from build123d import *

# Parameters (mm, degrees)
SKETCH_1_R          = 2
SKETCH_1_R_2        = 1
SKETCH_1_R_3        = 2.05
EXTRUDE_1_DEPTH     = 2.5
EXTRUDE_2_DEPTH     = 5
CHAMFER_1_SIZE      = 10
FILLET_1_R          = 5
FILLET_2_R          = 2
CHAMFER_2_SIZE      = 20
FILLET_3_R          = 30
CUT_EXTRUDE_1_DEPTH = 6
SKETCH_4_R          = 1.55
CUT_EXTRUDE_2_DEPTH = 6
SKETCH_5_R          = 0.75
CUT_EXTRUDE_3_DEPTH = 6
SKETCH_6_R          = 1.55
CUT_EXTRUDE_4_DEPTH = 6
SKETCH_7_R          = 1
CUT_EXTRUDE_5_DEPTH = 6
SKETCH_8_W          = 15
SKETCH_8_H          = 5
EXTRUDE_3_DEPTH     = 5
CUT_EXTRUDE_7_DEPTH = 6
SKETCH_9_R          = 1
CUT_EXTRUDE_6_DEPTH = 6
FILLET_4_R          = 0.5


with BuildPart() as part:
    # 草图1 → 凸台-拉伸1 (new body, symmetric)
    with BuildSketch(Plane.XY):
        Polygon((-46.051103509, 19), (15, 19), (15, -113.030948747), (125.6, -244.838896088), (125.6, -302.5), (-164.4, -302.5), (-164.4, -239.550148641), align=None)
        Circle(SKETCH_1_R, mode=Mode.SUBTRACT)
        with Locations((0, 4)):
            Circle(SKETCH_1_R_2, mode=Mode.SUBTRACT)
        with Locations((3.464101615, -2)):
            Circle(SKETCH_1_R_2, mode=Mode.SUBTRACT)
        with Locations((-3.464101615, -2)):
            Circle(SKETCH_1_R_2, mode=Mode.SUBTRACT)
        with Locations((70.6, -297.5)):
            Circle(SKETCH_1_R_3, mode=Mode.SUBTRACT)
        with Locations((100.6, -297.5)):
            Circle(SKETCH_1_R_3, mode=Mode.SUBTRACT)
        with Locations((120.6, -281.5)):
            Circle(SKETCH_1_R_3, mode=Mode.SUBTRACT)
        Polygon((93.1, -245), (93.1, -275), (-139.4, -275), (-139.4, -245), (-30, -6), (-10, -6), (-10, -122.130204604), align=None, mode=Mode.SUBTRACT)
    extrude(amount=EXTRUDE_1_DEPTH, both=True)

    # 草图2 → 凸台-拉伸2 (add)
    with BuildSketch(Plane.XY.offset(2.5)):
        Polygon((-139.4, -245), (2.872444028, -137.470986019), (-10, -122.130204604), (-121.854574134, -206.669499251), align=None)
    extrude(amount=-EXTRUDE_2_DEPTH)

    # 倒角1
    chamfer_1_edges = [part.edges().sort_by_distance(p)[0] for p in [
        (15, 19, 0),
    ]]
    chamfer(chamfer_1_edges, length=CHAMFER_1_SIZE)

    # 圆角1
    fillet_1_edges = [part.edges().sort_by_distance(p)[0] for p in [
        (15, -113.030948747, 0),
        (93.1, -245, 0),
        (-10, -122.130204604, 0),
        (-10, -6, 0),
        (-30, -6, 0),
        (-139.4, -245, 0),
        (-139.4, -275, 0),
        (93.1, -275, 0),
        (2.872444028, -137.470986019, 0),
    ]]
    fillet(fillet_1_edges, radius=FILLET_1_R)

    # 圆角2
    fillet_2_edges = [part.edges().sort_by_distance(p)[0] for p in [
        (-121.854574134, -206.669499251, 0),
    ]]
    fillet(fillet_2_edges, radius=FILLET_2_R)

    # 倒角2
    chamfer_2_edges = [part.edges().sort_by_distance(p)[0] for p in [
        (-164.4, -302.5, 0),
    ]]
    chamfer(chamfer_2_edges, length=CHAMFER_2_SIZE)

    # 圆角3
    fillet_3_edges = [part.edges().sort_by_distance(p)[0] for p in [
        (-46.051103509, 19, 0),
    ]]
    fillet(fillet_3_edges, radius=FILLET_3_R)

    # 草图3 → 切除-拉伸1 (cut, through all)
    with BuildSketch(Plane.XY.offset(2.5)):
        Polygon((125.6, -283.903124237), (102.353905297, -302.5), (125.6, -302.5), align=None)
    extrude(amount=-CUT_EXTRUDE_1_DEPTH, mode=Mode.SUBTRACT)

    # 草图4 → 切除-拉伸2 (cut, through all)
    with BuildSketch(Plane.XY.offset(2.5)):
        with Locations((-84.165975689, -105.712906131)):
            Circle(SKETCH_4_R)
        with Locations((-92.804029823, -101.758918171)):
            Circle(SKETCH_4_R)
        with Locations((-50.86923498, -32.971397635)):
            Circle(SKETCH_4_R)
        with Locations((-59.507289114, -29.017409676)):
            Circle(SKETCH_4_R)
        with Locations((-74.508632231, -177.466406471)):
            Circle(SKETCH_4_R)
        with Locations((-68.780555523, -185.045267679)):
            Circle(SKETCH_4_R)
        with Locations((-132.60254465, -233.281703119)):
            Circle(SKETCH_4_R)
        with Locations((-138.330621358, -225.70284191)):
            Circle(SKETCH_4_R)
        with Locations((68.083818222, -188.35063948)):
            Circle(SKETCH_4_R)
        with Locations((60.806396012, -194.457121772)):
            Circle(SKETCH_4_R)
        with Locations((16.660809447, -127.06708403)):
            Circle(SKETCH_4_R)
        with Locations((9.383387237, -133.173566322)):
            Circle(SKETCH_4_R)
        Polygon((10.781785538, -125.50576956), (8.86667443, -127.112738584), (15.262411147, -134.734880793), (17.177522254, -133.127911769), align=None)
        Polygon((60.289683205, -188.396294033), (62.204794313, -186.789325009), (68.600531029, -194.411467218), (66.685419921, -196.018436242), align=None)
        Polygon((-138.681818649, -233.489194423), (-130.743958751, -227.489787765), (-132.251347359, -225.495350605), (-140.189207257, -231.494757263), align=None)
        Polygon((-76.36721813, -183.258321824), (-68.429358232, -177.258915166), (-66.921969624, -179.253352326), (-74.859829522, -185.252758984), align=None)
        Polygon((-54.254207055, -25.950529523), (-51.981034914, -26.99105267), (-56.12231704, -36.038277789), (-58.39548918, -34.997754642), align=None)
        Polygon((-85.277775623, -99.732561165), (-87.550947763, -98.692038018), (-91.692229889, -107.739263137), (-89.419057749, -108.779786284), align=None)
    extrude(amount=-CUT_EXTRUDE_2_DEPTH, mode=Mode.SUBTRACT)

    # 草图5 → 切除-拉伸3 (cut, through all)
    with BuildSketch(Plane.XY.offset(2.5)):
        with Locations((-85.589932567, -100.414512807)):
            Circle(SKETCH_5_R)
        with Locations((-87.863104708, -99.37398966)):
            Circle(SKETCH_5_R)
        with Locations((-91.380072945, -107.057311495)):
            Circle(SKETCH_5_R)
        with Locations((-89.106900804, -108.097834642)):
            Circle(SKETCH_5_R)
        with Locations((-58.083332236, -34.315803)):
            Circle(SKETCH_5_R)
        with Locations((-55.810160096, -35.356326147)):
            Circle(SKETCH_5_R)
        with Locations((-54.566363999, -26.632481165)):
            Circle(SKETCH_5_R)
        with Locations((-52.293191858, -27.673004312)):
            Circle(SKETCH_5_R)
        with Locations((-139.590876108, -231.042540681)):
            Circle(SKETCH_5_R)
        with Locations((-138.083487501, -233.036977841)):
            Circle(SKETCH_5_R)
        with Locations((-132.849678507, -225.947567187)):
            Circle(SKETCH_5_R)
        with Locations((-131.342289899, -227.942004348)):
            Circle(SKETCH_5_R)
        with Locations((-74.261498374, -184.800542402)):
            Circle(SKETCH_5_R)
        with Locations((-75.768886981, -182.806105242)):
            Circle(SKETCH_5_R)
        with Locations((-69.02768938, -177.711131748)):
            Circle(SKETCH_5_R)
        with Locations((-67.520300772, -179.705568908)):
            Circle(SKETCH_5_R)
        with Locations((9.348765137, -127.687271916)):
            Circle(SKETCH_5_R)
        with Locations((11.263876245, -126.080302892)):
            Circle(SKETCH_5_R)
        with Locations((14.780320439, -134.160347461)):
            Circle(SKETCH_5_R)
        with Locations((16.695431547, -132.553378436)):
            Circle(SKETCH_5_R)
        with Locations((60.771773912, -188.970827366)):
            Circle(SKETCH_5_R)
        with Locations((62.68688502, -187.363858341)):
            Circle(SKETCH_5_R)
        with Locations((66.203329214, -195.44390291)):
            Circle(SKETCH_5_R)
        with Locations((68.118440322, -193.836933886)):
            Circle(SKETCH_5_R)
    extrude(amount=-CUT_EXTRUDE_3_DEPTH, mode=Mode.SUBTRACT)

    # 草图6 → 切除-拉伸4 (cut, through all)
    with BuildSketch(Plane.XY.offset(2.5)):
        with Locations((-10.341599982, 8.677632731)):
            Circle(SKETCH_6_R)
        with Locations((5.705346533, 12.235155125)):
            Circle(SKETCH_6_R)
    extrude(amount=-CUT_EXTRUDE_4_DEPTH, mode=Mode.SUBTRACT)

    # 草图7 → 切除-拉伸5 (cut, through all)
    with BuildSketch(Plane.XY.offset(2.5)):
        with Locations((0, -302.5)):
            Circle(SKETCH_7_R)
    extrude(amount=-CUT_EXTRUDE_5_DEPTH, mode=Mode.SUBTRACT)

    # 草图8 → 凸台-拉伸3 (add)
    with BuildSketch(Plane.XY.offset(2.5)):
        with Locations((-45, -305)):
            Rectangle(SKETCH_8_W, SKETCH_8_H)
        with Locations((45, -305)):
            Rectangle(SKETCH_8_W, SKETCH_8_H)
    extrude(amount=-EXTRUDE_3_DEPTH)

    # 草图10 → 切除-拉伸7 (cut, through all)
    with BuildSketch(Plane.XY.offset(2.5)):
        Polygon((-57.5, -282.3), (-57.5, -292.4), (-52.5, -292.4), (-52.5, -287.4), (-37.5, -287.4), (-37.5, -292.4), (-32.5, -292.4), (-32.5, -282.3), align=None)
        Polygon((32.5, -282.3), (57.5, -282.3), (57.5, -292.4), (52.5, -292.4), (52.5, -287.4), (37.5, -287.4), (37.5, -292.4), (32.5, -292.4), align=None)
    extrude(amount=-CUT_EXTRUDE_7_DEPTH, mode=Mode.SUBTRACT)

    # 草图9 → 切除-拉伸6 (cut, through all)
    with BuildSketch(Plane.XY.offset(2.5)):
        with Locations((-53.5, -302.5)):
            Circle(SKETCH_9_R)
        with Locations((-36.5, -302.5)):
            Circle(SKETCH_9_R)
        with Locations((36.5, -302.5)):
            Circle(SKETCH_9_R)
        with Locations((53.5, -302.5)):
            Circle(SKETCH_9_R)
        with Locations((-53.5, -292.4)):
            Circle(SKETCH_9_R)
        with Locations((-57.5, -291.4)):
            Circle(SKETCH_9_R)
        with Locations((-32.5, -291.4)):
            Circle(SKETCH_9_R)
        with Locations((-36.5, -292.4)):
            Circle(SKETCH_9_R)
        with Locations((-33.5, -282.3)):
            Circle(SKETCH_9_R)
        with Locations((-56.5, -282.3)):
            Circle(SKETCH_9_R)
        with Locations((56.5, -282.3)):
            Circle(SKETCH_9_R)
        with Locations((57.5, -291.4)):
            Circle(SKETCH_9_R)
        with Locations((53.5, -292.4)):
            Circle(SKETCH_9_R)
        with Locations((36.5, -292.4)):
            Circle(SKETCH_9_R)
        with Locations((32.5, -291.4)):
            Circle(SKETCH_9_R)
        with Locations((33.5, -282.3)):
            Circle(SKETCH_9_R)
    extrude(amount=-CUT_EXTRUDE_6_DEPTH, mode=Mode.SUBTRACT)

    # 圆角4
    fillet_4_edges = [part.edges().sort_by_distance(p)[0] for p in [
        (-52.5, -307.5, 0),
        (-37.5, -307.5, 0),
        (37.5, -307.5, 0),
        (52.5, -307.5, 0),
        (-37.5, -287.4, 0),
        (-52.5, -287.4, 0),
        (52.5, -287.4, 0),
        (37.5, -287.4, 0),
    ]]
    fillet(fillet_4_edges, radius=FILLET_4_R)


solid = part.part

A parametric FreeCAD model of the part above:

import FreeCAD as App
import Part
import Sketcher
Q = App.Units.Quantity


def edges_at(feature, points):
    """Names of the edges that pass closest to the given points."""
    edges = feature.Shape.Edges
    near = lambda p: min(range(len(edges)), key=lambda i: edges[i].distToShape(Part.Vertex(*p))[0])
    return sorted({f"Edge{near(p) + 1}" for p in points})


def add_polygon(sketch, points):
    """Adds a closed chain of lines whose ends are joined by coincident constraints."""
    first, n = sketch.GeometryCount, len(points)
    for a, b in zip(points, points[1:] + points[:1]):
        sketch.addGeometry(Part.LineSegment(App.Vector(*a, 0), App.Vector(*b, 0)), False)
    for i in range(n):
        sketch.addConstraint(Sketcher.Constraint("Coincident", first + i, 2, first + (i + 1) % n, 1))

doc = App.newDocument("Part")
params = doc.addObject("Spreadsheet::Sheet", "Params")
for row, (alias, value) in enumerate([
    ("sketch1_diameter", "2 mm"),
    ("sketch1_diameter2", "4 mm"),
    ("sketch1_diameter3", "4.1 mm"),
    ("sketch1_width", "290 mm"),
    ("sketch1_width2", "20 mm"),
    ("pad1_length", "5 mm"),
    ("pad2_length", "5 mm"),
    ("chamfer_size", "10 mm"),
    ("fillet_radius", "5 mm"),
    ("fillet2_radius", "2 mm"),
    ("chamfer2_size", "20 mm"),
    ("fillet3_radius", "30 mm"),
    ("sketch4_diameter", "3.1 mm"),
    ("sketch4_length", "2.5 mm"),
    ("sketch4_length2", "9.95 mm"),
    ("sketch5_diameter", "1.5 mm"),
    ("sketch6_diameter", "3.1 mm"),
    ("sketch7_diameter", "2 mm"),
    ("sketch8_width", "15 mm"),
    ("sketch8_height", "5 mm"),
    ("pad3_length", "5 mm"),
    ("sketch9_width", "5 mm"),
    ("sketch9_width2", "15 mm"),
    ("sketch9_height", "10.1 mm"),
    ("sketch10_diameter", "2 mm"),
    ("fillet4_radius", "0.5 mm"),
], start=1):
    params.set(f"A{row}", alias)
    params.set(f"B{row}", "=" + value)
    params.setAlias(f"B{row}", alias)

body = doc.addObject("PartDesign::Body", "Body")

sketch1 = body.newObject("Sketcher::SketchObject", "Sketch")
sketch1.AttachmentSupport = (doc.getObject("XY_Plane"), [""])
sketch1.MapMode = "FlatFace"
add_polygon(sketch1, [(15, 19), (-46.1, 19), (-164.4, -239.6), (-164.4, -302.5), (125.6, -302.5), (125.6, -244.8), (15, -113)])
sketch1.addGeometry(Part.Circle(App.Vector(120.6, -281.5, 0), App.Vector(0, 0, 1), 2), False)
sketch1.addGeometry(Part.Circle(App.Vector(100.6, -297.5, 0), App.Vector(0, 0, 1), 2), False)
sketch1.addGeometry(Part.Circle(App.Vector(70.6, -297.5, 0), App.Vector(0, 0, 1), 2), False)
sketch1.addGeometry(Part.Circle(App.Vector(3.5, -2, 0), App.Vector(0, 0, 1), 1), False)
sketch1.addGeometry(Part.Circle(App.Vector(0, 0, 0), App.Vector(0, 0, 1), 2), False)
sketch1.addGeometry(Part.Circle(App.Vector(0, 4, 0), App.Vector(0, 0, 1), 1), False)
sketch1.addGeometry(Part.Circle(App.Vector(-3.5, -2, 0), App.Vector(0, 0, 1), 1), False)
add_polygon(sketch1, [(93.1, -245), (93.1, -275), (-139.4, -275), (-139.4, -245), (-30, -6), (-10, -6), (-10, -122.1)])
sketch1.addConstraint(Sketcher.Constraint("Horizontal", 0))
sketch1.addConstraint(Sketcher.Constraint("Vertical", 2))
sketch1.addConstraint(Sketcher.Constraint("Horizontal", 3))
sketch1.addConstraint(Sketcher.Constraint("Vertical", 4))
sketch1.addConstraint(Sketcher.Constraint("Vertical", 6))
sketch1.addConstraint(Sketcher.Constraint("Vertical", 14))
sketch1.addConstraint(Sketcher.Constraint("Horizontal", 15))
sketch1.addConstraint(Sketcher.Constraint("Vertical", 16))
sketch1.addConstraint(Sketcher.Constraint("Horizontal", 18))
sketch1.addConstraint(Sketcher.Constraint("Vertical", 19))
sketch1.addConstraint(Sketcher.Constraint("Coincident", 11, 3, -1, 1))
sketch1.addConstraint(Sketcher.Constraint("Equal", 7, 8))
sketch1.addConstraint(Sketcher.Constraint("Equal", 8, 9))
sketch1.addConstraint(Sketcher.Constraint("Equal", 10, 12))
sketch1.addConstraint(Sketcher.Constraint("Equal", 12, 13))
sketch1.addConstraint(Sketcher.Constraint("Symmetric", 10, 3, 13, 3, -2))
sketch1.addConstraint(Sketcher.Constraint("PointOnObject", 12, 3, -2))
sketch1.addConstraint(Sketcher.Constraint("Parallel", 1, 17))
sketch1.addConstraint(Sketcher.Constraint("Parallel", 5, 20))
sketch1.addConstraint(Sketcher.Constraint("Horizontal", 8, 3, 9, 3))
sketch1.addConstraint(Sketcher.Constraint("Horizontal", 16, 2, 20, 2))
sketch1.addConstraint(Sketcher.Constraint("Diameter", 10, Q("2 mm")))
sketch1.addConstraint(Sketcher.Constraint("Diameter", 11, Q("4 mm")))
sketch1.addConstraint(Sketcher.Constraint("Diameter", 7, Q("4.1 mm")))
sketch1.addConstraint(Sketcher.Constraint("DistanceX", 3, 1, 3, 2, Q("290 mm")))
sketch1.addConstraint(Sketcher.Constraint("DistanceX", 18, 1, 18, 2, Q("20 mm")))
sketch1.addConstraint(Sketcher.Constraint("DistanceY", 14, 2, 14, 1, Q("30 mm")))
sketch1.addConstraint(Sketcher.Constraint("Angle", 5, Q("130 deg")))
sketch1.addConstraint(Sketcher.Constraint("DistanceX", 15, 2, 15, 1, Q("232.5 mm")))
sketch1.addConstraint(Sketcher.Constraint("DistanceY", 10, 3, -1, 1, Q("2 mm")))
sketch1.addConstraint(Sketcher.Constraint("DistanceY", -1, 1, 12, 3, Q("4 mm")))
sketch1.addConstraint(Sketcher.Constraint("DistanceY", -1, 1, 0, 2, Q("19 mm")))
sketch1.addConstraint(Sketcher.Constraint("DistanceX", -1, 1, 5, 2, Q("15 mm")))
sketch1.addConstraint(Sketcher.Constraint("DistanceY", 14, 2, -1, 1, Q("275 mm")))
sketch1.addConstraint(Sketcher.Constraint("DistanceX", 17, 2, -1, 1, Q("30 mm")))
sketch1.addConstraint(Sketcher.Constraint("DistanceY", 17, 2, -1, 1, Q("6 mm")))
sketch1.addConstraint(Sketcher.Constraint("DistanceX", 8, 3, 7, 3, Q("20 mm")))
sketch1.addConstraint(Sketcher.Constraint("DistanceY", 8, 3, 7, 3, Q("16 mm")))
sketch1.addConstraint(Sketcher.Constraint("DistanceX", 9, 3, 8, 3, Q("30 mm")))
sketch1.addConstraint(Sketcher.Constraint("DistanceX", 1, 2, 9, 3, Q("235 mm")))
sketch1.addConstraint(Sketcher.Constraint("DistanceY", 2, 2, 9, 3, Q("5 mm")))
sketch1.addConstraint(Sketcher.Constraint("DistanceX", 2, 2, 15, 2, Q("25 mm")))
sketch1.addConstraint(Sketcher.Constraint("DistanceX", -1, 1, 7, 3, Q("120.6 mm")))
sketch1.addConstraint(Sketcher.Constraint("DistanceY", 7, 3, -1, 1, Q("281.5 mm")))
sketch1.addConstraint(Sketcher.Constraint("DistanceX", 0, 2, 13, 3, Q("42.587002 mm")))
sketch1.addConstraint(Sketcher.Constraint("DistanceY", 2, 2, 2, 1, Q("62.949851 mm")))
sketch1.addConstraint(Sketcher.Constraint("DistanceY", 6, 1, 6, 2, Q("132.030949 mm")))
sketch1.setExpression("Constraints[35]", "Params.sketch1_diameter")
sketch1.setExpression("Constraints[36]", "Params.sketch1_diameter2")
sketch1.setExpression("Constraints[37]", "Params.sketch1_diameter3")
sketch1.setExpression("Constraints[38]", "Params.sketch1_width")
sketch1.setExpression("Constraints[39]", "Params.sketch1_width2")
pad1 = body.newObject("PartDesign::Pad", "Pad")
pad1.Profile = sketch1
pad1.setExpression("Length", "Params.pad1_length")
pad1.Midplane = True

sketch2 = body.newObject("Sketcher::SketchObject", "Sketch001")
sketch2.AttachmentSupport = (doc.getObject("XY_Plane"), [""])
sketch2.MapMode = "FlatFace"
sketch2.AttachmentOffset = App.Placement(App.Vector(0, 0, 2.5), App.Rotation())
add_polygon(sketch2, [(-139, -245), (3, -137), (-10, -122), (-122, -207)])
sketch2.addConstraint(Sketcher.Constraint("Parallel", 0, 2))
sketch2.addConstraint(Sketcher.Constraint("Angle", 1, Q("130 deg")))
sketch2.addConstraint(Sketcher.Constraint("DistanceX", 1, 2, -1, 1, Q("10 mm")))
sketch2.addConstraint(Sketcher.Constraint("DistanceY", 3, 2, -1, 1, Q("245 mm")))
sketch2.addConstraint(Sketcher.Constraint("DistanceX", 3, 2, -1, 1, Q("139.4 mm")))
sketch2.addConstraint(Sketcher.Constraint("Distance", 3, Q("42.155299 mm")))
sketch2.addConstraint(Sketcher.Constraint("DistanceY", 2, 2, -1, 1, Q("206.669499 mm")))
sketch2.addConstraint(Sketcher.Constraint("DistanceY", 0, 2, 1, 2, Q("15.340781 mm")))
pad2 = body.newObject("PartDesign::Pad", "Pad001")
pad2.Profile = sketch2
pad2.setExpression("Length", "Params.pad2_length")
pad2.Reversed = True
doc.recompute()

chamfer = body.newObject("PartDesign::Chamfer", "Chamfer")
chamfer.Base = (pad2, edges_at(pad2, [(15, 19, 0)]))
chamfer.setExpression("Size", "Params.chamfer_size")
doc.recompute()

fillet = body.newObject("PartDesign::Fillet", "Fillet")
fillet.Base = (chamfer, edges_at(chamfer, [
    (15, -113.031, 0),
    (93.1, -245, 0),
    (-10, -122.13, 0),
    (-10, -6, 0),
    (-30, -6, 0),
    (-139.4, -245, 0),
    (-139.4, -275, 0),
    (93.1, -275, 0),
    (2.872, -137.471, 0),
]))
fillet.setExpression("Radius", "Params.fillet_radius")
doc.recompute()

fillet2 = body.newObject("PartDesign::Fillet", "Fillet001")
fillet2.Base = (fillet, edges_at(fillet, [(-121.855, -206.669, 0)]))
fillet2.setExpression("Radius", "Params.fillet2_radius")
doc.recompute()

chamfer2 = body.newObject("PartDesign::Chamfer", "Chamfer001")
chamfer2.Base = (fillet2, edges_at(fillet2, [(-164.4, -302.5, 0)]))
chamfer2.setExpression("Size", "Params.chamfer2_size")
doc.recompute()

fillet3 = body.newObject("PartDesign::Fillet", "Fillet002")
fillet3.Base = (chamfer2, edges_at(chamfer2, [(-46.051, 19, 0)]))
fillet3.setExpression("Radius", "Params.fillet3_radius")

sketch3 = body.newObject("Sketcher::SketchObject", "Sketch002")
sketch3.AttachmentSupport = (doc.getObject("XY_Plane"), [""])
sketch3.MapMode = "FlatFace"
sketch3.AttachmentOffset = App.Placement(App.Vector(0, 0, 2.5), App.Rotation())
add_polygon(sketch3, [(126, -284), (102, -302), (126, -302)])
sketch3.addConstraint(Sketcher.Constraint("Horizontal", 1))
sketch3.addConstraint(Sketcher.Constraint("Vertical", 2))
sketch3.addConstraint(Sketcher.Constraint("DistanceY", 0, 2, -1, 1, Q("302.5 mm")))
sketch3.addConstraint(Sketcher.Constraint("DistanceX", -1, 1, 1, 2, Q("125.6 mm")))
sketch3.addConstraint(Sketcher.Constraint("DistanceX", 1, 1, 1, 2, Q("23.246095 mm")))
sketch3.addConstraint(Sketcher.Constraint("DistanceY", 2, 1, 2, 2, Q("18.596876 mm")))
pocket1 = body.newObject("PartDesign::Pocket", "Pocket")
pocket1.Profile = sketch3
pocket1.Type = "ThroughAll"

sketch4 = body.newObject("Sketcher::SketchObject", "Sketch003")
sketch4.AttachmentSupport = (doc.getObject("XY_Plane"), [""])
sketch4.MapMode = "FlatFace"
sketch4.AttachmentOffset = App.Placement(App.Vector(0, 0, 2.5), App.Rotation())
sketch4.addGeometry(Part.Circle(App.Vector(-84.2, -105.7, 0), App.Vector(0, 0, 1), 1.6), False)
sketch4.addGeometry(Part.Circle(App.Vector(-92.8, -101.8, 0), App.Vector(0, 0, 1), 1.6), False)
sketch4.addGeometry(Part.Circle(App.Vector(-50.9, -33, 0), App.Vector(0, 0, 1), 1.6), False)
sketch4.addGeometry(Part.Circle(App.Vector(-59.5, -29, 0), App.Vector(0, 0, 1), 1.6), False)
sketch4.addGeometry(Part.Circle(App.Vector(-74.5, -177.5, 0), App.Vector(0, 0, 1), 1.6), False)
sketch4.addGeometry(Part.Circle(App.Vector(-68.8, -185, 0), App.Vector(0, 0, 1), 1.6), False)
sketch4.addGeometry(Part.Circle(App.Vector(-132.6, -233.3, 0), App.Vector(0, 0, 1), 1.6), False)
sketch4.addGeometry(Part.Circle(App.Vector(-138.3, -225.7, 0), App.Vector(0, 0, 1), 1.6), False)
sketch4.addGeometry(Part.Circle(App.Vector(68.1, -188.4, 0), App.Vector(0, 0, 1), 1.6), False)
sketch4.addGeometry(Part.Circle(App.Vector(60.8, -194.5, 0), App.Vector(0, 0, 1), 1.6), False)
sketch4.addGeometry(Part.Circle(App.Vector(16.7, -127.1, 0), App.Vector(0, 0, 1), 1.6), False)
sketch4.addGeometry(Part.Circle(App.Vector(9.4, -133.2, 0), App.Vector(0, 0, 1), 1.6), False)
add_polygon(sketch4, [(10.8, -125.5), (8.9, -127.1), (15.3, -134.7), (17.2, -133.1)])
add_polygon(sketch4, [(62.2, -186.8), (60.3, -188.4), (66.7, -196), (68.6, -194.4)])
add_polygon(sketch4, [(-138.7, -233.5), (-130.7, -227.5), (-132.3, -225.5), (-140.2, -231.5)])
add_polygon(sketch4, [(-68.4, -177.3), (-76.4, -183.3), (-74.9, -185.3), (-66.9, -179.3)])
add_polygon(sketch4, [(-52, -27), (-54.3, -26), (-58.4, -35), (-56.1, -36)])
add_polygon(sketch4, [(-85.3, -99.7), (-87.6, -98.7), (-91.7, -107.7), (-89.4, -108.8)])
sketch4.addConstraint(Sketcher.Constraint("Equal", 0, 1))
sketch4.addConstraint(Sketcher.Constraint("Equal", 1, 2))
sketch4.addConstraint(Sketcher.Constraint("Equal", 2, 3))
sketch4.addConstraint(Sketcher.Constraint("Equal", 3, 4))
sketch4.addConstraint(Sketcher.Constraint("Equal", 4, 5))
sketch4.addConstraint(Sketcher.Constraint("Equal", 5, 6))
sketch4.addConstraint(Sketcher.Constraint("Equal", 6, 7))
sketch4.addConstraint(Sketcher.Constraint("Equal", 7, 8))
sketch4.addConstraint(Sketcher.Constraint("Equal", 8, 9))
sketch4.addConstraint(Sketcher.Constraint("Equal", 9, 10))
sketch4.addConstraint(Sketcher.Constraint("Equal", 10, 11))
sketch4.addConstraint(Sketcher.Constraint("Perpendicular", 12, 13))
sketch4.addConstraint(Sketcher.Constraint("Perpendicular", 13, 14))
sketch4.addConstraint(Sketcher.Constraint("Perpendicular", 14, 15))
sketch4.addConstraint(Sketcher.Constraint("Perpendicular", 15, 16))
sketch4.addConstraint(Sketcher.Constraint("Perpendicular", 16, 17))
sketch4.addConstraint(Sketcher.Constraint("Perpendicular", 17, 18))
sketch4.addConstraint(Sketcher.Constraint("Perpendicular", 18, 19))
sketch4.addConstraint(Sketcher.Constraint("Perpendicular", 20, 21))
sketch4.addConstraint(Sketcher.Constraint("Perpendicular", 21, 22))
sketch4.addConstraint(Sketcher.Constraint("Perpendicular", 22, 23))
sketch4.addConstraint(Sketcher.Constraint("Perpendicular", 23, 24))
sketch4.addConstraint(Sketcher.Constraint("Perpendicular", 24, 25))
sketch4.addConstraint(Sketcher.Constraint("Perpendicular", 25, 26))
sketch4.addConstraint(Sketcher.Constraint("Perpendicular", 26, 27))
sketch4.addConstraint(Sketcher.Constraint("Perpendicular", 28, 29))
sketch4.addConstraint(Sketcher.Constraint("Perpendicular", 29, 30))
sketch4.addConstraint(Sketcher.Constraint("Perpendicular", 30, 31))
sketch4.addConstraint(Sketcher.Constraint("Perpendicular", 31, 32))
sketch4.addConstraint(Sketcher.Constraint("Perpendicular", 32, 33))
sketch4.addConstraint(Sketcher.Constraint("Perpendicular", 33, 34))
sketch4.addConstraint(Sketcher.Constraint("Perpendicular", 34, 35))
sketch4.addConstraint(Sketcher.Constraint("Equal", 14, 16))
sketch4.addConstraint(Sketcher.Constraint("Equal", 15, 17))
sketch4.addConstraint(Sketcher.Constraint("Equal", 19, 20))
sketch4.addConstraint(Sketcher.Constraint("Equal", 18, 21))
sketch4.addConstraint(Sketcher.Constraint("Equal", 22, 24))
sketch4.addConstraint(Sketcher.Constraint("Equal", 23, 25))
sketch4.addConstraint(Sketcher.Constraint("Equal", 27, 28))
sketch4.addConstraint(Sketcher.Constraint("Equal", 26, 29))
sketch4.addConstraint(Sketcher.Constraint("Equal", 30, 32))
sketch4.addConstraint(Sketcher.Constraint("Equal", 31, 33))
sketch4.addConstraint(Sketcher.Constraint("Diameter", 0, Q("3.1 mm")))
sketch4.addConstraint(Sketcher.Constraint("Angle", 12, Q("-140 deg")))
sketch4.addConstraint(Sketcher.Constraint("Distance", 12, Q("2.5 mm")))
sketch4.addConstraint(Sketcher.Constraint("Distance", 13, Q("9.95 mm")))
sketch4.addConstraint(Sketcher.Constraint("DistanceY", 4, 3, 0, 3, Q("71.7535 mm")))
sketch4.addConstraint(Sketcher.Constraint("DistanceY", 5, 3, 11, 3, Q("51.871701 mm")))
sketch4.addConstraint(Sketcher.Constraint("DistanceY", 8, 3, 12, 2, Q("61.237901 mm")))
sketch4.addConstraint(Sketcher.Constraint("DistanceX", 13, 2, 10, 3, Q("1.398398 mm")))
sketch4.addConstraint(Sketcher.Constraint("DistanceX", 11, 3, 15, 2, Q("1.398398 mm")))
sketch4.addConstraint(Sketcher.Constraint("DistanceX", 17, 2, 8, 3, Q("1.398398 mm")))
sketch4.addConstraint(Sketcher.Constraint("DistanceX", 9, 3, 19, 2, Q("1.398398 mm")))
sketch4.addConstraint(Sketcher.Constraint("DistanceX", 3, 3, 29, 2, Q("1.1118 mm")))
sketch4.addConstraint(Sketcher.Constraint("DistanceX", 31, 2, 2, 3, Q("1.1118 mm")))
sketch4.addConstraint(Sketcher.Constraint("DistanceY", 29, 2, 31, 2, Q("8.006702 mm")))
sketch4.addConstraint(Sketcher.Constraint("DistanceX", 1, 3, 33, 2, Q("1.1118 mm")))
sketch4.addConstraint(Sketcher.Constraint("DistanceX", 35, 2, 0, 3, Q("1.1118 mm")))
sketch4.addConstraint(Sketcher.Constraint("DistanceX", 1, 3, -1, 1, Q("92.80403 mm")))
sketch4.addConstraint(Sketcher.Constraint("DistanceY", 1, 3, -1, 1, Q("101.758918 mm")))
sketch4.addConstraint(Sketcher.Constraint("DistanceX", 3, 3, -1, 1, Q("59.507289 mm")))
sketch4.addConstraint(Sketcher.Constraint("DistanceY", 3, 3, -1, 1, Q("29.01741 mm")))
sketch4.addConstraint(Sketcher.Constraint("DistanceX", 7, 3, -1, 1, Q("138.330621 mm")))
sketch4.addConstraint(Sketcher.Constraint("DistanceY", 7, 3, -1, 1, Q("225.702842 mm")))
sketch4.addConstraint(Sketcher.Constraint("DistanceX", -1, 1, 8, 3, Q("68.083818 mm")))
sketch4.addConstraint(Sketcher.Constraint("DistanceY", 8, 3, -1, 1, Q("188.350639 mm")))
sketch4.addConstraint(Sketcher.Constraint("DistanceY", 9, 3, -1, 1, Q("194.457122 mm")))
sketch4.addConstraint(Sketcher.Constraint("DistanceX", -1, 1, 10, 3, Q("16.660809 mm")))
sketch4.addConstraint(Sketcher.Constraint("DistanceX", 20, 2, -1, 1, Q("130.743959 mm")))
sketch4.addConstraint(Sketcher.Constraint("DistanceY", 21, 2, -1, 1, Q("225.495351 mm")))
sketch4.addConstraint(Sketcher.Constraint("DistanceX", 23, 2, -1, 1, Q("138.681819 mm")))
sketch4.addConstraint(Sketcher.Constraint("DistanceX", 24, 2, -1, 1, Q("76.367218 mm")))
sketch4.addConstraint(Sketcher.Constraint("DistanceY", 24, 2, -1, 1, Q("183.258322 mm")))
sketch4.addConstraint(Sketcher.Constraint("DistanceY", 28, 2, -1, 1, Q("25.95053 mm")))
sketch4.addConstraint(Sketcher.Constraint("DistanceY", 32, 2, -1, 1, Q("98.692038 mm")))
sketch4.addConstraint(Sketcher.Constraint("DistanceY", 0, 3, 2, 3, Q("72.741508 mm")))
sketch4.addConstraint(Sketcher.Constraint("DistanceY", 1, 3, 2, 3, Q("68.787521 mm")))
sketch4.addConstraint(Sketcher.Constraint("DistanceY", 5, 3, 4, 3, Q("7.578861 mm")))
sketch4.addConstraint(Sketcher.Constraint("DistanceX", 0, 3, 5, 3, Q("15.38542 mm")))
sketch4.addConstraint(Sketcher.Constraint("DistanceX", 6, 3, 5, 3, Q("63.821989 mm")))
sketch4.addConstraint(Sketcher.Constraint("DistanceY", 6, 3, 7, 3, Q("7.578861 mm")))
sketch4.addConstraint(Sketcher.Constraint("DistanceX", 7, 3, 4, 3, Q("63.821989 mm")))
sketch4.addConstraint(Sketcher.Constraint("DistanceY", 10, 3, -1, 1, Q("127.067084 mm")))
sketch4.addConstraint(Sketcher.Constraint("DistanceY", 16, 2, -1, 1, Q("188.396294 mm")))
sketch4.setExpression("Constraints[66]", "Params.sketch4_diameter")
sketch4.setExpression("Constraints[68]", "Params.sketch4_length")
sketch4.setExpression("Constraints[69]", "Params.sketch4_length2")
pocket2 = body.newObject("PartDesign::Pocket", "Pocket001")
pocket2.Profile = sketch4
pocket2.Type = "ThroughAll"

sketch5 = body.newObject("Sketcher::SketchObject", "Sketch004")
sketch5.AttachmentSupport = (doc.getObject("XY_Plane"), [""])
sketch5.MapMode = "FlatFace"
sketch5.AttachmentOffset = App.Placement(App.Vector(0, 0, 2.5), App.Rotation())
sketch5.addGeometry(Part.Circle(App.Vector(-85.6, -100.4, 0), App.Vector(0, 0, 1), 0.8), False)
sketch5.addGeometry(Part.Circle(App.Vector(-87.9, -99.4, 0), App.Vector(0, 0, 1), 0.8), False)
sketch5.addGeometry(Part.Circle(App.Vector(-91.4, -107.1, 0), App.Vector(0, 0, 1), 0.8), False)
sketch5.addGeometry(Part.Circle(App.Vector(-89.1, -108.1, 0), App.Vector(0, 0, 1), 0.8), False)
sketch5.addGeometry(Part.Circle(App.Vector(-58.1, -34.3, 0), App.Vector(0, 0, 1), 0.8), False)
sketch5.addGeometry(Part.Circle(App.Vector(-55.8, -35.4, 0), App.Vector(0, 0, 1), 0.8), False)
sketch5.addGeometry(Part.Circle(App.Vector(-54.6, -26.6, 0), App.Vector(0, 0, 1), 0.8), False)
sketch5.addGeometry(Part.Circle(App.Vector(-52.3, -27.7, 0), App.Vector(0, 0, 1), 0.8), False)
sketch5.addGeometry(Part.Circle(App.Vector(-139.6, -231, 0), App.Vector(0, 0, 1), 0.8), False)
sketch5.addGeometry(Part.Circle(App.Vector(-138.1, -233, 0), App.Vector(0, 0, 1), 0.8), False)
sketch5.addGeometry(Part.Circle(App.Vector(-132.8, -225.9, 0), App.Vector(0, 0, 1), 0.8), False)
sketch5.addGeometry(Part.Circle(App.Vector(-131.3, -227.9, 0), App.Vector(0, 0, 1), 0.8), False)
sketch5.addGeometry(Part.Circle(App.Vector(-74.3, -184.8, 0), App.Vector(0, 0, 1), 0.8), False)
sketch5.addGeometry(Part.Circle(App.Vector(-75.8, -182.8, 0), App.Vector(0, 0, 1), 0.8), False)
sketch5.addGeometry(Part.Circle(App.Vector(-69, -177.7, 0), App.Vector(0, 0, 1), 0.8), False)
sketch5.addGeometry(Part.Circle(App.Vector(-67.5, -179.7, 0), App.Vector(0, 0, 1), 0.8), False)
sketch5.addGeometry(Part.Circle(App.Vector(9.3, -127.7, 0), App.Vector(0, 0, 1), 0.8), False)
sketch5.addGeometry(Part.Circle(App.Vector(11.3, -126.1, 0), App.Vector(0, 0, 1), 0.8), False)
sketch5.addGeometry(Part.Circle(App.Vector(14.8, -134.2, 0), App.Vector(0, 0, 1), 0.8), False)
sketch5.addGeometry(Part.Circle(App.Vector(16.7, -132.6, 0), App.Vector(0, 0, 1), 0.8), False)
sketch5.addGeometry(Part.Circle(App.Vector(60.8, -189, 0), App.Vector(0, 0, 1), 0.8), False)
sketch5.addGeometry(Part.Circle(App.Vector(62.7, -187.4, 0), App.Vector(0, 0, 1), 0.8), False)
sketch5.addGeometry(Part.Circle(App.Vector(66.2, -195.4, 0), App.Vector(0, 0, 1), 0.8), False)
sketch5.addGeometry(Part.Circle(App.Vector(68.1, -193.8, 0), App.Vector(0, 0, 1), 0.8), False)
sketch5.addConstraint(Sketcher.Constraint("Equal", 0, 1))
sketch5.addConstraint(Sketcher.Constraint("Equal", 1, 2))
sketch5.addConstraint(Sketcher.Constraint("Equal", 2, 3))
sketch5.addConstraint(Sketcher.Constraint("Equal", 3, 4))
sketch5.addConstraint(Sketcher.Constraint("Equal", 4, 5))
sketch5.addConstraint(Sketcher.Constraint("Equal", 5, 6))
sketch5.addConstraint(Sketcher.Constraint("Equal", 6, 7))
sketch5.addConstraint(Sketcher.Constraint("Equal", 7, 8))
sketch5.addConstraint(Sketcher.Constraint("Equal", 8, 9))
sketch5.addConstraint(Sketcher.Constraint("Equal", 9, 10))
sketch5.addConstraint(Sketcher.Constraint("Equal", 10, 11))
sketch5.addConstraint(Sketcher.Constraint("Equal", 11, 12))
sketch5.addConstraint(Sketcher.Constraint("Equal", 12, 13))
sketch5.addConstraint(Sketcher.Constraint("Equal", 13, 14))
sketch5.addConstraint(Sketcher.Constraint("Equal", 14, 15))
sketch5.addConstraint(Sketcher.Constraint("Equal", 15, 16))
sketch5.addConstraint(Sketcher.Constraint("Equal", 16, 17))
sketch5.addConstraint(Sketcher.Constraint("Equal", 17, 18))
sketch5.addConstraint(Sketcher.Constraint("Equal", 18, 19))
sketch5.addConstraint(Sketcher.Constraint("Equal", 19, 20))
sketch5.addConstraint(Sketcher.Constraint("Equal", 20, 21))
sketch5.addConstraint(Sketcher.Constraint("Equal", 21, 22))
sketch5.addConstraint(Sketcher.Constraint("Equal", 22, 23))
sketch5.addConstraint(Sketcher.Constraint("Diameter", 0, Q("1.5 mm")))
sketch5.addConstraint(Sketcher.Constraint("DistanceX", 3, 3, -1, 1, Q("89.106901 mm")))
sketch5.addConstraint(Sketcher.Constraint("DistanceX", 12, 3, -1, 1, Q("74.261498 mm")))
sketch5.addConstraint(Sketcher.Constraint("DistanceX", 15, 3, -1, 1, Q("67.520301 mm")))
sketch5.addConstraint(Sketcher.Constraint("DistanceY", 2, 3, 0, 3, Q("6.642799 mm")))
sketch5.addConstraint(Sketcher.Constraint("DistanceX", 0, 3, 4, 3, Q("27.5066 mm")))
sketch5.addConstraint(Sketcher.Constraint("DistanceY", 4, 3, 7, 3, Q("6.642799 mm")))
sketch5.addConstraint(Sketcher.Constraint("DistanceY", 11, 3, 13, 3, Q("45.135899 mm")))
sketch5.addConstraint(Sketcher.Constraint("DistanceY", 1, 3, -1, 1, Q("99.37399 mm")))
sketch5.addConstraint(Sketcher.Constraint("DistanceY", 2, 3, -1, 1, Q("107.057311 mm")))
sketch5.addConstraint(Sketcher.Constraint("DistanceX", 5, 3, -1, 1, Q("55.81016 mm")))
sketch5.addConstraint(Sketcher.Constraint("DistanceY", 6, 3, -1, 1, Q("26.632481 mm")))
sketch5.addConstraint(Sketcher.Constraint("DistanceX", 7, 3, -1, 1, Q("52.293192 mm")))
sketch5.addConstraint(Sketcher.Constraint("DistanceY", 8, 3, -1, 1, Q("231.042541 mm")))
sketch5.addConstraint(Sketcher.Constraint("DistanceX", 10, 3, -1, 1, Q("132.849679 mm")))
sketch5.addConstraint(Sketcher.Constraint("DistanceX", 11, 3, -1, 1, Q("131.34229 mm")))
sketch5.addConstraint(Sketcher.Constraint("DistanceX", 14, 3, -1, 1, Q("69.027689 mm")))
sketch5.addConstraint(Sketcher.Constraint("DistanceY", 14, 3, -1, 1, Q("177.711132 mm")))
sketch5.addConstraint(Sketcher.Constraint("DistanceY", 15, 3, -1, 1, Q("179.705569 mm")))
sketch5.addConstraint(Sketcher.Constraint("DistanceY", 16, 3, -1, 1, Q("127.687272 mm")))
sketch5.addConstraint(Sketcher.Constraint("DistanceX", -1, 1, 18, 3, Q("14.78032 mm")))
sketch5.addConstraint(Sketcher.Constraint("DistanceX", -1, 1, 19, 3, Q("16.695432 mm")))
sketch5.addConstraint(Sketcher.Constraint("DistanceY", 19, 3, -1, 1, Q("132.553378 mm")))
sketch5.addConstraint(Sketcher.Constraint("DistanceY", 21, 3, -1, 1, Q("187.363858 mm")))
sketch5.addConstraint(Sketcher.Constraint("DistanceX", -1, 1, 22, 3, Q("66.203329 mm")))
sketch5.addConstraint(Sketcher.Constraint("DistanceX", -1, 1, 23, 3, Q("68.11844 mm")))
sketch5.addConstraint(Sketcher.Constraint("DistanceX", 2, 3, 1, 3, Q("3.516968 mm")))
sketch5.addConstraint(Sketcher.Constraint("DistanceX", 2, 3, 0, 3, Q("5.79014 mm")))
sketch5.addConstraint(Sketcher.Constraint("DistanceX", 3, 3, 0, 3, Q("3.516968 mm")))
sketch5.addConstraint(Sketcher.Constraint("DistanceY", 3, 3, 0, 3, Q("7.683322 mm")))
sketch5.addConstraint(Sketcher.Constraint("DistanceY", 0, 3, 4, 3, Q("66.09871 mm")))
sketch5.addConstraint(Sketcher.Constraint("DistanceY", 3, 3, 5, 3, Q("72.741508 mm")))
sketch5.addConstraint(Sketcher.Constraint("DistanceX", 4, 3, 6, 3, Q("3.516968 mm")))
sketch5.addConstraint(Sketcher.Constraint("DistanceX", 8, 3, 1, 3, Q("51.727771 mm")))
sketch5.addConstraint(Sketcher.Constraint("DistanceX", 8, 3, 9, 3, Q("1.507389 mm")))
sketch5.addConstraint(Sketcher.Constraint("DistanceY", 9, 3, 1, 3, Q("133.662988 mm")))
sketch5.addConstraint(Sketcher.Constraint("DistanceY", 9, 3, 10, 3, Q("7.089411 mm")))
sketch5.addConstraint(Sketcher.Constraint("DistanceY", 11, 3, 3, 3, Q("119.84417 mm")))
sketch5.addConstraint(Sketcher.Constraint("DistanceY", 11, 3, 12, 3, Q("43.141462 mm")))
sketch5.addConstraint(Sketcher.Constraint("DistanceX", 13, 3, 12, 3, Q("1.507389 mm")))
sketch5.addConstraint(Sketcher.Constraint("DistanceX", 1, 3, 16, 3, Q("97.21187 mm")))
sketch5.addConstraint(Sketcher.Constraint("DistanceX", 16, 3, 17, 3, Q("1.915111 mm")))
sketch5.addConstraint(Sketcher.Constraint("DistanceY", 16, 3, 17, 3, Q("1.606969 mm")))
sketch5.addConstraint(Sketcher.Constraint("DistanceY", 15, 3, 18, 3, Q("45.545221 mm")))
sketch5.addConstraint(Sketcher.Constraint("DistanceY", 20, 3, 18, 3, Q("54.81048 mm")))
sketch5.addConstraint(Sketcher.Constraint("DistanceX", 16, 3, 20, 3, Q("51.423009 mm")))
sketch5.addConstraint(Sketcher.Constraint("DistanceX", 20, 3, 21, 3, Q("1.915111 mm")))
sketch5.addConstraint(Sketcher.Constraint("DistanceY", 22, 3, 16, 3, Q("67.756631 mm")))
sketch5.addConstraint(Sketcher.Constraint("DistanceY", 22, 3, 23, 3, Q("1.606969 mm")))
sketch5.setExpression("Constraints[23]", "Params.sketch5_diameter")
pocket3 = body.newObject("PartDesign::Pocket", "Pocket002")
pocket3.Profile = sketch5
pocket3.Type = "ThroughAll"

sketch6 = body.newObject("Sketcher::SketchObject", "Sketch005")
sketch6.AttachmentSupport = (doc.getObject("XY_Plane"), [""])
sketch6.MapMode = "FlatFace"
sketch6.AttachmentOffset = App.Placement(App.Vector(0, 0, 2.5), App.Rotation())
sketch6.addGeometry(Part.Circle(App.Vector(-10.3, 8.7, 0), App.Vector(0, 0, 1), 1.6), False)
sketch6.addGeometry(Part.Circle(App.Vector(5.7, 12.2, 0), App.Vector(0, 0, 1), 1.6), False)
sketch6.addConstraint(Sketcher.Constraint("Equal", 0, 1))
sketch6.addConstraint(Sketcher.Constraint("Diameter", 0, Q("3.1 mm")))
sketch6.addConstraint(Sketcher.Constraint("DistanceX", 0, 3, -1, 1, Q("10.3416 mm")))
sketch6.addConstraint(Sketcher.Constraint("DistanceY", -1, 1, 0, 3, Q("8.677633 mm")))
sketch6.addConstraint(Sketcher.Constraint("DistanceX", -1, 1, 1, 3, Q("5.705347 mm")))
sketch6.addConstraint(Sketcher.Constraint("DistanceY", -1, 1, 1, 3, Q("12.235155 mm")))
sketch6.setExpression("Constraints[1]", "Params.sketch6_diameter")
pocket4 = body.newObject("PartDesign::Pocket", "Pocket003")
pocket4.Profile = sketch6
pocket4.Type = "ThroughAll"

sketch7 = body.newObject("Sketcher::SketchObject", "Sketch006")
sketch7.AttachmentSupport = (doc.getObject("XY_Plane"), [""])
sketch7.MapMode = "FlatFace"
sketch7.AttachmentOffset = App.Placement(App.Vector(0, 0, 2.5), App.Rotation())
sketch7.addGeometry(Part.Circle(App.Vector(0, -302.5, 0), App.Vector(0, 0, 1), 1), False)
sketch7.addConstraint(Sketcher.Constraint("PointOnObject", 0, 3, -2))
sketch7.addConstraint(Sketcher.Constraint("Diameter", 0, Q("2 mm")))
sketch7.addConstraint(Sketcher.Constraint("DistanceY", 0, 3, -1, 1, Q("302.5 mm")))
sketch7.setExpression("Constraints[1]", "Params.sketch7_diameter")
pocket5 = body.newObject("PartDesign::Pocket", "Pocket004")
pocket5.Profile = sketch7
pocket5.Type = "ThroughAll"

sketch8 = body.newObject("Sketcher::SketchObject", "Sketch007")
sketch8.AttachmentSupport = (doc.getObject("XY_Plane"), [""])
sketch8.MapMode = "FlatFace"
sketch8.AttachmentOffset = App.Placement(App.Vector(0, 0, 2.5), App.Rotation())
add_polygon(sketch8, [(-52, -302), (-52, -308), (-38, -308), (-38, -302)])
add_polygon(sketch8, [(38, -302), (38, -308), (52, -308), (52, -302)])
sketch8.addConstraint(Sketcher.Constraint("Vertical", 0))
sketch8.addConstraint(Sketcher.Constraint("Horizontal", 1))
sketch8.addConstraint(Sketcher.Constraint("Vertical", 2))
sketch8.addConstraint(Sketcher.Constraint("Horizontal", 3))
sketch8.addConstraint(Sketcher.Constraint("Vertical", 4))
sketch8.addConstraint(Sketcher.Constraint("Horizontal", 5))
sketch8.addConstraint(Sketcher.Constraint("Vertical", 6))
sketch8.addConstraint(Sketcher.Constraint("Horizontal", 7))
sketch8.addConstraint(Sketcher.Constraint("Symmetric", 1, 2, 4, 2, -2))
sketch8.addConstraint(Sketcher.Constraint("Symmetric", 3, 2, 6, 2, -2))
sketch8.addConstraint(Sketcher.Constraint("DistanceX", 1, 1, 1, 2, Q("15 mm")))
sketch8.addConstraint(Sketcher.Constraint("DistanceY", 0, 2, 0, 1, Q("5 mm")))
sketch8.addConstraint(Sketcher.Constraint("DistanceX", 1, 2, 4, 2, Q("75 mm")))
sketch8.addConstraint(Sketcher.Constraint("DistanceY", 0, 2, -1, 1, Q("307.5 mm")))
sketch8.setExpression("Constraints[18]", "Params.sketch8_width")
sketch8.setExpression("Constraints[19]", "Params.sketch8_height")
pad3 = body.newObject("PartDesign::Pad", "Pad002")
pad3.Profile = sketch8
pad3.setExpression("Length", "Params.pad3_length")
pad3.Reversed = True

sketch9 = body.newObject("Sketcher::SketchObject", "Sketch008")
sketch9.AttachmentSupport = (doc.getObject("XY_Plane"), [""])
sketch9.MapMode = "FlatFace"
sketch9.AttachmentOffset = App.Placement(App.Vector(0, 0, 2.5), App.Rotation())
add_polygon(sketch9, [(-58, -282), (-58, -292), (-52, -292), (-52, -287), (-38, -287), (-38, -292), (-32, -292), (-32, -282)])
add_polygon(sketch9, [(58, -282), (32, -282), (32, -292), (38, -292), (38, -287), (52, -287), (52, -292), (58, -292)])
sketch9.addConstraint(Sketcher.Constraint("Vertical", 0))
sketch9.addConstraint(Sketcher.Constraint("Horizontal", 1))
sketch9.addConstraint(Sketcher.Constraint("Vertical", 2))
sketch9.addConstraint(Sketcher.Constraint("Horizontal", 3))
sketch9.addConstraint(Sketcher.Constraint("Vertical", 4))
sketch9.addConstraint(Sketcher.Constraint("Horizontal", 5))
sketch9.addConstraint(Sketcher.Constraint("Vertical", 6))
sketch9.addConstraint(Sketcher.Constraint("Horizontal", 7))
sketch9.addConstraint(Sketcher.Constraint("Horizontal", 8))
sketch9.addConstraint(Sketcher.Constraint("Vertical", 9))
sketch9.addConstraint(Sketcher.Constraint("Horizontal", 10))
sketch9.addConstraint(Sketcher.Constraint("Vertical", 11))
sketch9.addConstraint(Sketcher.Constraint("Horizontal", 12))
sketch9.addConstraint(Sketcher.Constraint("Vertical", 13))
sketch9.addConstraint(Sketcher.Constraint("Horizontal", 14))
sketch9.addConstraint(Sketcher.Constraint("Vertical", 15))
sketch9.addConstraint(Sketcher.Constraint("Symmetric", 6, 2, 8, 2, -2))
sketch9.addConstraint(Sketcher.Constraint("Symmetric", 4, 2, 10, 2, -2))
sketch9.addConstraint(Sketcher.Constraint("Symmetric", 2, 2, 12, 2, -2))
sketch9.addConstraint(Sketcher.Constraint("Symmetric", 0, 2, 14, 2, -2))
sketch9.addConstraint(Sketcher.Constraint("Horizontal", 1, 2, 4, 2))
sketch9.addConstraint(Sketcher.Constraint("Equal", 1, 5))
sketch9.addConstraint(Sketcher.Constraint("Equal", 14, 2))
sketch9.addConstraint(Sketcher.Constraint("DistanceX", 1, 1, 1, 2, Q("5 mm")))
sketch9.addConstraint(Sketcher.Constraint("DistanceX", 3, 1, 3, 2, Q("15 mm")))
sketch9.addConstraint(Sketcher.Constraint("DistanceY", 0, 2, 0, 1, Q("10.1 mm")))
sketch9.addConstraint(Sketcher.Constraint("DistanceX", 6, 2, 8, 2, Q("65 mm")))
sketch9.addConstraint(Sketcher.Constraint("DistanceY", 0, 2, -1, 1, Q("292.4 mm")))
sketch9.setExpression("Constraints[39]", "Params.sketch9_width")
sketch9.setExpression("Constraints[40]", "Params.sketch9_width2")
sketch9.setExpression("Constraints[41]", "Params.sketch9_height")
pocket6 = body.newObject("PartDesign::Pocket", "Pocket005")
pocket6.Profile = sketch9
pocket6.Type = "ThroughAll"

sketch10 = body.newObject("Sketcher::SketchObject", "Sketch009")
sketch10.AttachmentSupport = (doc.getObject("XY_Plane"), [""])
sketch10.MapMode = "FlatFace"
sketch10.AttachmentOffset = App.Placement(App.Vector(0, 0, 2.5), App.Rotation())
sketch10.addGeometry(Part.Circle(App.Vector(-53.5, -302.5, 0), App.Vector(0, 0, 1), 1), False)
sketch10.addGeometry(Part.Circle(App.Vector(-36.5, -302.5, 0), App.Vector(0, 0, 1), 1), False)
sketch10.addGeometry(Part.Circle(App.Vector(36.5, -302.5, 0), App.Vector(0, 0, 1), 1), False)
sketch10.addGeometry(Part.Circle(App.Vector(53.5, -302.5, 0), App.Vector(0, 0, 1), 1), False)
sketch10.addGeometry(Part.Circle(App.Vector(-53.5, -292.4, 0), App.Vector(0, 0, 1), 1), False)
sketch10.addGeometry(Part.Circle(App.Vector(-57.5, -291.4, 0), App.Vector(0, 0, 1), 1), False)
sketch10.addGeometry(Part.Circle(App.Vector(-32.5, -291.4, 0), App.Vector(0, 0, 1), 1), False)
sketch10.addGeometry(Part.Circle(App.Vector(-36.5, -292.4, 0), App.Vector(0, 0, 1), 1), False)
sketch10.addGeometry(Part.Circle(App.Vector(-33.5, -282.3, 0), App.Vector(0, 0, 1), 1), False)
sketch10.addGeometry(Part.Circle(App.Vector(-56.5, -282.3, 0), App.Vector(0, 0, 1), 1), False)
sketch10.addGeometry(Part.Circle(App.Vector(56.5, -282.3, 0), App.Vector(0, 0, 1), 1), False)
sketch10.addGeometry(Part.Circle(App.Vector(57.5, -291.4, 0), App.Vector(0, 0, 1), 1), False)
sketch10.addGeometry(Part.Circle(App.Vector(53.5, -292.4, 0), App.Vector(0, 0, 1), 1), False)
sketch10.addGeometry(Part.Circle(App.Vector(36.5, -292.4, 0), App.Vector(0, 0, 1), 1), False)
sketch10.addGeometry(Part.Circle(App.Vector(32.5, -291.4, 0), App.Vector(0, 0, 1), 1), False)
sketch10.addGeometry(Part.Circle(App.Vector(33.5, -282.3, 0), App.Vector(0, 0, 1), 1), False)
sketch10.addConstraint(Sketcher.Constraint("Equal", 0, 1))
sketch10.addConstraint(Sketcher.Constraint("Equal", 1, 2))
sketch10.addConstraint(Sketcher.Constraint("Equal", 2, 3))
sketch10.addConstraint(Sketcher.Constraint("Equal", 3, 4))
sketch10.addConstraint(Sketcher.Constraint("Equal", 4, 5))
sketch10.addConstraint(Sketcher.Constraint("Equal", 5, 6))
sketch10.addConstraint(Sketcher.Constraint("Equal", 6, 7))
sketch10.addConstraint(Sketcher.Constraint("Equal", 7, 8))
sketch10.addConstraint(Sketcher.Constraint("Equal", 8, 9))
sketch10.addConstraint(Sketcher.Constraint("Equal", 9, 10))
sketch10.addConstraint(Sketcher.Constraint("Equal", 10, 11))
sketch10.addConstraint(Sketcher.Constraint("Equal", 11, 12))
sketch10.addConstraint(Sketcher.Constraint("Equal", 12, 13))
sketch10.addConstraint(Sketcher.Constraint("Equal", 13, 14))
sketch10.addConstraint(Sketcher.Constraint("Equal", 14, 15))
sketch10.addConstraint(Sketcher.Constraint("Symmetric", 1, 3, 2, 3, -2))
sketch10.addConstraint(Sketcher.Constraint("Symmetric", 0, 3, 3, 3, -2))
sketch10.addConstraint(Sketcher.Constraint("Symmetric", 9, 3, 10, 3, -2))
sketch10.addConstraint(Sketcher.Constraint("Symmetric", 5, 3, 11, 3, -2))
sketch10.addConstraint(Sketcher.Constraint("Symmetric", 4, 3, 12, 3, -2))
sketch10.addConstraint(Sketcher.Constraint("Symmetric", 7, 3, 13, 3, -2))
sketch10.addConstraint(Sketcher.Constraint("Symmetric", 6, 3, 14, 3, -2))
sketch10.addConstraint(Sketcher.Constraint("Symmetric", 8, 3, 15, 3, -2))
sketch10.addConstraint(Sketcher.Constraint("Horizontal", 0, 3, 1, 3))
sketch10.addConstraint(Sketcher.Constraint("Horizontal", 5, 3, 6, 3))
sketch10.addConstraint(Sketcher.Constraint("Horizontal", 4, 3, 7, 3))
sketch10.addConstraint(Sketcher.Constraint("Horizontal", 8, 3, 9, 3))
sketch10.addConstraint(Sketcher.Constraint("Vertical", 0, 3, 4, 3))
sketch10.addConstraint(Sketcher.Constraint("Vertical", 1, 3, 7, 3))
sketch10.addConstraint(Sketcher.Constraint("Diameter", 0, Q("2 mm")))
sketch10.addConstraint(Sketcher.Constraint("DistanceX", 0, 3, 1, 3, Q("17 mm")))
sketch10.addConstraint(Sketcher.Constraint("DistanceX", 1, 3, 2, 3, Q("73 mm")))
sketch10.addConstraint(Sketcher.Constraint("DistanceX", 5, 3, 4, 3, Q("4 mm")))
sketch10.addConstraint(Sketcher.Constraint("DistanceY", 4, 3, 5, 3, Q("1 mm")))
sketch10.addConstraint(Sketcher.Constraint("DistanceX", 1, 3, 6, 3, Q("4 mm")))
sketch10.addConstraint(Sketcher.Constraint("DistanceX", 8, 3, 6, 3, Q("1 mm")))
sketch10.addConstraint(Sketcher.Constraint("DistanceX", 5, 3, 9, 3, Q("1 mm")))
sketch10.addConstraint(Sketcher.Constraint("DistanceY", 0, 3, -1, 1, Q("302.5 mm")))
sketch10.addConstraint(Sketcher.Constraint("DistanceY", 4, 3, -1, 1, Q("292.4 mm")))
sketch10.addConstraint(Sketcher.Constraint("DistanceY", 8, 3, -1, 1, Q("282.3 mm")))
sketch10.setExpression("Constraints[29]", "Params.sketch10_diameter")
pocket7 = body.newObject("PartDesign::Pocket", "Pocket006")
pocket7.Profile = sketch10
pocket7.Type = "ThroughAll"
doc.recompute()

fillet4 = body.newObject("PartDesign::Fillet", "Fillet003")
fillet4.Base = (pocket7, edges_at(pocket7, [
    (-52.5, -307.5, 0),
    (-37.5, -307.5, 0),
    (37.5, -307.5, 0),
    (52.5, -307.5, 0),
    (-37.5, -287.4, 0),
    (-52.5, -287.4, 0),
    (52.5, -287.4, 0),
    (37.5, -287.4, 0),
]))
fillet4.setExpression("Radius", "Params.fillet4_radius")

doc.recompute()
